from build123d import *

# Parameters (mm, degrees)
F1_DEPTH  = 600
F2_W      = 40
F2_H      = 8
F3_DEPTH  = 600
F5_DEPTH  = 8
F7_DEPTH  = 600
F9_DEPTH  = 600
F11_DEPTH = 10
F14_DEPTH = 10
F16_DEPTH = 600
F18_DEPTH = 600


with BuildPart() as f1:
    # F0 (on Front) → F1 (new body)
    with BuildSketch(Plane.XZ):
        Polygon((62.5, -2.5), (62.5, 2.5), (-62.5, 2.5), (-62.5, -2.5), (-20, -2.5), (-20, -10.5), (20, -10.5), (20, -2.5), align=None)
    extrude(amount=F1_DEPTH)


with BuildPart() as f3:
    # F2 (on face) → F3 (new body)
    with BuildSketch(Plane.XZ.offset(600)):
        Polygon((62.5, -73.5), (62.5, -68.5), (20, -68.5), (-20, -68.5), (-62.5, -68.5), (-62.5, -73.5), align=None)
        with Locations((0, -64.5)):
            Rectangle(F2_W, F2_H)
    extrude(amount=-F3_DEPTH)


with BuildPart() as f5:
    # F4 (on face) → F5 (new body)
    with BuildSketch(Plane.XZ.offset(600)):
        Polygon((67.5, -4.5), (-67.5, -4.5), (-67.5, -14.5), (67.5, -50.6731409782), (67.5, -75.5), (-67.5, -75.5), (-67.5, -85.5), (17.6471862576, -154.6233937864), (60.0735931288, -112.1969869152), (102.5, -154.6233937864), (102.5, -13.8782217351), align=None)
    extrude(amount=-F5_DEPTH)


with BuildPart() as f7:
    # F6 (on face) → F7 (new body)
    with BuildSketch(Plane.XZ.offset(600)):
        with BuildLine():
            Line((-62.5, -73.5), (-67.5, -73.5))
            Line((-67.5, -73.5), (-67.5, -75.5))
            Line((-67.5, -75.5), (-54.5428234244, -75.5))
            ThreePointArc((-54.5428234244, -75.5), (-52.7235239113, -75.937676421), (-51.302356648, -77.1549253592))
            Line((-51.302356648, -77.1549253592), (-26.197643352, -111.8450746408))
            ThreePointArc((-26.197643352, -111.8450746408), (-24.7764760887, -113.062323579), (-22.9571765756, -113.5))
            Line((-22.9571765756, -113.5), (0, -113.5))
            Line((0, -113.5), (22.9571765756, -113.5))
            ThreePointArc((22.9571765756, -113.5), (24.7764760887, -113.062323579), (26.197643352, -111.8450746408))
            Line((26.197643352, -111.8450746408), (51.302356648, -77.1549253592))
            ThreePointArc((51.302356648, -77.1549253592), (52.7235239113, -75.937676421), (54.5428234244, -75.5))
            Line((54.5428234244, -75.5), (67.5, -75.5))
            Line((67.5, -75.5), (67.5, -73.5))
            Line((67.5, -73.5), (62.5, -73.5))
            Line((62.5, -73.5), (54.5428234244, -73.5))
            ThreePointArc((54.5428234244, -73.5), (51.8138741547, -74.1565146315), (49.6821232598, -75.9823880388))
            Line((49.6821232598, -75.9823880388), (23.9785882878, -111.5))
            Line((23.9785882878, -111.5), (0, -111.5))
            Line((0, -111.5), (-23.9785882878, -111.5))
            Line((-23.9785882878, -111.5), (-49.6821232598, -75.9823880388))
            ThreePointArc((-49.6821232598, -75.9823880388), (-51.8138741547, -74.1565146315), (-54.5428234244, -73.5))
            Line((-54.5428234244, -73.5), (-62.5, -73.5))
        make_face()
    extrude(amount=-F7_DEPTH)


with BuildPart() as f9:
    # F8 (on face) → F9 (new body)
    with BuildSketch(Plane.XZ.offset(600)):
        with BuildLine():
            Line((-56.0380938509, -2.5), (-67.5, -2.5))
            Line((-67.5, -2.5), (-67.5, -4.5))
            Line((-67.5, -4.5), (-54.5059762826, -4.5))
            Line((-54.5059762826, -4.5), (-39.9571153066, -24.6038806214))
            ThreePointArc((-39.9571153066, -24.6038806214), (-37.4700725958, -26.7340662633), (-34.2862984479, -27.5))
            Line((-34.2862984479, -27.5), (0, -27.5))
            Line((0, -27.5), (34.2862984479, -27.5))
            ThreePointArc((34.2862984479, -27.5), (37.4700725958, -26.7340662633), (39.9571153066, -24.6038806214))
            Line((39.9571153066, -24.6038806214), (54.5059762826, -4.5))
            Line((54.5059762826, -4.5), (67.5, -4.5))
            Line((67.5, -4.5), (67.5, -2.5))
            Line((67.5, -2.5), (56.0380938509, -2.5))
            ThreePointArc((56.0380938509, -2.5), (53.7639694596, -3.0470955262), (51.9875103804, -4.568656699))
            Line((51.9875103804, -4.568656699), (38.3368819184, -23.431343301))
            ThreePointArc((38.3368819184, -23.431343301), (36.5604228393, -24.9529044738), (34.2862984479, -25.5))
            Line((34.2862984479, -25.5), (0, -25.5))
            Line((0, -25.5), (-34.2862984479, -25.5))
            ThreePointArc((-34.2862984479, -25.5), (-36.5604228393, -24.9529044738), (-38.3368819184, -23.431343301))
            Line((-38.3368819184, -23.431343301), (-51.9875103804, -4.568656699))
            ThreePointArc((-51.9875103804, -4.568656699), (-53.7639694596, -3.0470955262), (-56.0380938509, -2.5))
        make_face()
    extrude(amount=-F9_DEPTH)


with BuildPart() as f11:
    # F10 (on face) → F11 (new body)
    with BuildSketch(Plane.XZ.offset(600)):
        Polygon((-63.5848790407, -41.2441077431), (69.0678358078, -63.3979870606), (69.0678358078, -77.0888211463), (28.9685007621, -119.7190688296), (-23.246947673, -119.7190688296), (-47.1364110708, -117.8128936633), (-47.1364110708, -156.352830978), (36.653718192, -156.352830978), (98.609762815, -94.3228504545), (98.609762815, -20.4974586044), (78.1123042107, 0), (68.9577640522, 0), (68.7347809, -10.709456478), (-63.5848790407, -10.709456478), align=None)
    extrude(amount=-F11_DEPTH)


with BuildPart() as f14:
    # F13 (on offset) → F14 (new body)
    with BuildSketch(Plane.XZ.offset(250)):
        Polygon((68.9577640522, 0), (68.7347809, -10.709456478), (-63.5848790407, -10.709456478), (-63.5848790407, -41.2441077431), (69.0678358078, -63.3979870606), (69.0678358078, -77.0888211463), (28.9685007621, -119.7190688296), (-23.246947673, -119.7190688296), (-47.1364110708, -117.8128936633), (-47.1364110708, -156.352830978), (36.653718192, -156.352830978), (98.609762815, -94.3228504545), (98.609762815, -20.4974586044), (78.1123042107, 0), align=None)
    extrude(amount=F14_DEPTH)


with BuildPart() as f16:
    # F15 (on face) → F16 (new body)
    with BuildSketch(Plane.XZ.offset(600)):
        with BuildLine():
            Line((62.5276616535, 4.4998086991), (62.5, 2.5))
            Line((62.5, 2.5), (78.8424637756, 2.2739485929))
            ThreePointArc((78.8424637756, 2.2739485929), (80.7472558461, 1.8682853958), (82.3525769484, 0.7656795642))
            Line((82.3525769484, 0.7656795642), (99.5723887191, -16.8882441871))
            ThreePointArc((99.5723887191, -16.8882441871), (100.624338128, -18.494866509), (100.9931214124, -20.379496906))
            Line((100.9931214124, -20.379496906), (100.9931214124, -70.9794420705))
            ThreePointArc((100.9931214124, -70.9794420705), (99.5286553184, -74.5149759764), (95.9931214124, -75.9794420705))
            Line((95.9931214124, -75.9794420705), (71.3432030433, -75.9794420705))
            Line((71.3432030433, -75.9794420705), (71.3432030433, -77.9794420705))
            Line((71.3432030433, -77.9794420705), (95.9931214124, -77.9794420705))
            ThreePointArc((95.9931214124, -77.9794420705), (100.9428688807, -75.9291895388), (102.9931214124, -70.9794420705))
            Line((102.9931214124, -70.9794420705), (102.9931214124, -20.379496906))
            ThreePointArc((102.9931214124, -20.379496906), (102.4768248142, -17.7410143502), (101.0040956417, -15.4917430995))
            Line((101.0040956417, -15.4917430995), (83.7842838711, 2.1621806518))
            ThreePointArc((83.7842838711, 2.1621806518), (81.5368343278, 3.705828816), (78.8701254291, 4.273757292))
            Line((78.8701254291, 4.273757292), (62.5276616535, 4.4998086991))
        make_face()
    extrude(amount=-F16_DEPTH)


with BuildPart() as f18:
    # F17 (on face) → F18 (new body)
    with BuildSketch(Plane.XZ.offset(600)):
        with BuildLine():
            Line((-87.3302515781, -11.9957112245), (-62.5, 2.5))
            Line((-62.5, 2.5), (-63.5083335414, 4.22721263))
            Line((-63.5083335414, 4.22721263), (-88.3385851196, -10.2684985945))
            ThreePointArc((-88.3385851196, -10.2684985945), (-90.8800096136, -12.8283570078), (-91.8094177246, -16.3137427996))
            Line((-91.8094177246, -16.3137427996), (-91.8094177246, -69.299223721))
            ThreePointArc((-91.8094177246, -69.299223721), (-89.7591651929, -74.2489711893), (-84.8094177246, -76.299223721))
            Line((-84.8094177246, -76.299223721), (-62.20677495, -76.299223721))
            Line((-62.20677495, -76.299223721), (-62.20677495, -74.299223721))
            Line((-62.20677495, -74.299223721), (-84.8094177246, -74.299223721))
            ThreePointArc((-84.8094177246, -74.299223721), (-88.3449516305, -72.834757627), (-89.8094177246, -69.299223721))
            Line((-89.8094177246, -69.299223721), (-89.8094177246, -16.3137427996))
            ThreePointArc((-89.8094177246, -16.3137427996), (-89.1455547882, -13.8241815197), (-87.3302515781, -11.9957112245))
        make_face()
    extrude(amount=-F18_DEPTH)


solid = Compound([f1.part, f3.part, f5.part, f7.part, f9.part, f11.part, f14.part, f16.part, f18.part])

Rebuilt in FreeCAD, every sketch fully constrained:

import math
import FreeCAD as App
import Part
import Sketcher
from FreeCAD import Vector
Q = App.Units.Quantity


def add_polygon(sketch, points):
    """Adds a closed chain of lines whose ends are joined by coincident constraints."""
    first, n = sketch.GeometryCount, len(points)
    for a, b in zip(points, points[1:] + points[:1]):
        sketch.addGeometry(Part.LineSegment(App.Vector(*a, 0), App.Vector(*b, 0)), False)
    for i in range(n):
        sketch.addConstraint(Sketcher.Constraint("Coincident", first + i, 2, first + (i + 1) % n, 1))

doc = App.newDocument("Part")
body = doc.addObject("PartDesign::Body", "Body")

# Sketch on XZ plane
sketch1 = body.newObject("Sketcher::SketchObject", "Sketch")
sketch1.AttachmentSupport = (doc.getObject("XZ_Plane"), [""])
sketch1.MapMode = "FlatFace"
add_polygon(sketch1, [(62, -2), (62, 2), (-62, 2), (-62, -2), (-20, -2), (-20, -10), (20, -10), (20, -2)])  # lines 0-7
sketch1.addConstraint([
    Sketcher.Constraint("Vertical", 0),
    Sketcher.Constraint("Horizontal", 1),
    Sketcher.Constraint("Vertical", 2),
    Sketcher.Constraint("Horizontal", 3),
    Sketcher.Constraint("Vertical", 4),
    Sketcher.Constraint("Horizontal", 5),
    Sketcher.Constraint("Vertical", 6),
    Sketcher.Constraint("Horizontal", 7),
    Sketcher.Constraint("Symmetric", 0, 2, 2, 2, -1, 1),
    Sketcher.Constraint("Symmetric", 3, 2, 6, 2, -2),
    Sketcher.Constraint("DistanceX", 1, 2, 1, 1, Q("125 mm")),
    Sketcher.Constraint("DistanceX", 5, 1, 5, 2, Q("40 mm")),
    Sketcher.Constraint("DistanceY", 0, 1, 0, 2, Q("5 mm")),
    Sketcher.Constraint("DistanceY", 4, 2, 4, 1, Q("8 mm")),
])
pad1 = body.newObject("PartDesign::Pad", "Pad")
pad1.Profile = sketch1
pad1.Length = 600
body2 = doc.addObject("PartDesign::Body", "Body001")

# Sketch on XZ plane
sketch2 = body2.newObject("Sketcher::SketchObject", "Sketch001")
sketch2.AttachmentSupport = (doc.getObject("XZ_Plane001"), [""])
sketch2.MapMode = "FlatFace"
sketch2.AttachmentOffset = App.Placement(Vector(0, 0, 600), App.Rotation())
add_polygon(sketch2, [(62, -74), (62, -68), (20, -68), (20, -60), (-20, -60), (-20, -68), (-62, -68), (-62, -74)])  # lines 0-7
sketch2.addConstraint([
    Sketcher.Constraint("Vertical", 0),
    Sketcher.Constraint("Horizontal", 1),
    Sketcher.Constraint("Vertical", 2),
    Sketcher.Constraint("Horizontal", 3),
    Sketcher.Constraint("Vertical", 4),
    Sketcher.Constraint("Horizontal", 5),
    Sketcher.Constraint("Vertical", 6),
    Sketcher.Constraint("Horizontal", 7),
    Sketcher.Constraint("Symmetric", 1, 2, 4, 2, -2),
    Sketcher.Constraint("Equal", 1, 5),
    Sketcher.Constraint("DistanceX", 3, 2, 3, 1, Q("40 mm")),
    Sketcher.Constraint("DistanceX", 7, 1, 7, 2, Q("125 mm")),
    Sketcher.Constraint("DistanceY", 0, 1, 0, 2, Q("5 mm")),
    Sketcher.Constraint("DistanceY", 2, 1, 2, 2, Q("8 mm")),
    Sketcher.Constraint("DistanceY", 0, 2, -1, 1, Q("68.5 mm")),
])
pad2 = body2.newObject("PartDesign::Pad", "Pad001")
pad2.Profile = sketch2
pad2.Length = 600
pad2.Reversed = True
body3 = doc.addObject("PartDesign::Body", "Body002")

# Sketch on XZ plane
sketch3 = body3.newObject("Sketcher::SketchObject", "Sketch002")
sketch3.AttachmentSupport = (doc.getObject("XZ_Plane002"), [""])
sketch3.MapMode = "FlatFace"
sketch3.AttachmentOffset = App.Placement(Vector(0, 0, 600), App.Rotation())
add_polygon(sketch3, [(68, -4), (-68, -4), (-68, -14), (68, -51), (68, -76), (-68, -76), (-68, -86), (18, -155), (60, -112), (102, -155), (102, -14)])  # lines 0-10
sketch3.addConstraint([
    Sketcher.Constraint("Horizontal", 0),
    Sketcher.Constraint("Vertical", 1),
    Sketcher.Constraint("Vertical", 3),
    Sketcher.Constraint("Horizontal", 4),
    Sketcher.Constraint("Vertical", 5),
    Sketcher.Constraint("Vertical", 9),
    Sketcher.Constraint("Perpendicular", 7, 8),
    Sketcher.Constraint("Parallel", 2, 10),
    Sketcher.Constraint("Horizontal", 6, 2, 8, 2),
    Sketcher.Constraint("Vertical", 1, 2, 4, 2),
    Sketcher.Constraint("Vertical", 3, 2, 10, 2),
    Sketcher.Constraint("Equal", 1, 5),
    Sketcher.Constraint("Equal", 7, 8),
    Sketcher.Constraint("DistanceX", 0, 2, 0, 1, Q("135 mm")),
    Sketcher.Constraint("DistanceY", 1, 2, 1, 1, Q("10 mm")),
    Sketcher.Constraint("Angle", 2, Q("-15 deg")),
    Sketcher.Constraint("Distance", 7, Q("60 mm")),
    Sketcher.Constraint("DistanceY", 3, 2, 1, 2, Q("61 mm")),
    Sketcher.Constraint("DistanceX", 3, 2, 8, 2, Q("35 mm")),
    Sketcher.Constraint("DistanceX", 0, 2, -1, 1, Q("67.5 mm")),
    Sketcher.Constraint("DistanceY", 0, 2, -1, 1, Q("4.5 mm")),
    Sketcher.Constraint("DistanceY", 9, 1, 9, 2, Q("140.745172 mm")),
])
pad3 = body3.newObject("PartDesign::Pad", "Pad002")
pad3.Profile = sketch3
pad3.Length = 8
pad3.Reversed = True
body4 = doc.addObject("PartDesign::Body", "Body003")

# Sketch on XZ plane
sketch4 = body4.newObject("Sketcher::SketchObject", "Sketch003")
sketch4.AttachmentSupport = (doc.getObject("XZ_Plane003"), [""])
sketch4.MapMode = "FlatFace"
sketch4.AttachmentOffset = App.Placement(Vector(0, 0, 600), App.Rotation())
sketch4.addGeometry([
    Part.LineSegment(Vector(-67.5, -73.5, 0), Vector(-67.5, -75.5, 0)),  # 0
    Part.LineSegment(Vector(-67.5, -75.5, 0), Vector(-54.5, -75.5, 0)),  # 1
    Part.ArcOfCircle(Part.Circle(Vector(-54.5, -79.5, 0), Vector(0, 0, 1), 4), math.radians(36), math.radians(90)),  # 2
    Part.LineSegment(Vector(-51.3, -77.2, 0), Vector(-26.2, -111.8, 0)),  # 3
    Part.ArcOfCircle(Part.Circle(Vector(-23, -109.5, 0), Vector(0, 0, 1), 4), math.radians(-144), math.radians(-90)),  # 4
    Part.LineSegment(Vector(-23, -113.5, 0), Vector(23, -113.5, 0)),  # 5
    Part.ArcOfCircle(Part.Circle(Vector(23, -109.5, 0), Vector(0, 0, 1), 4), math.radians(-90), math.radians(-36)),  # 6
    Part.LineSegment(Vector(26.2, -111.8, 0), Vector(51.3, -77.2, 0)),  # 7
    Part.ArcOfCircle(Part.Circle(Vector(54.5, -79.5, 0), Vector(0, 0, 1), 4), math.radians(90), math.radians(144)),  # 8
    Part.LineSegment(Vector(54.5, -75.5, 0), Vector(67.5, -75.5, 0)),  # 9
    Part.LineSegment(Vector(67.5, -75.5, 0), Vector(67.5, -73.5, 0)),  # 10
    Part.LineSegment(Vector(67.5, -73.5, 0), Vector(54.5, -73.5, 0)),  # 11
    Part.ArcOfCircle(Part.Circle(Vector(54.5, -79.5, 0), Vector(0, 0, 1), 6), math.radians(90), math.radians(144)),  # 12
    Part.LineSegment(Vector(49.7, -76, 0), Vector(24, -111.5, 0)),  # 13
    Part.LineSegment(Vector(24, -111.5, 0), Vector(-24, -111.5, 0)),  # 14
    Part.LineSegment(Vector(-24, -111.5, 0), Vector(-49.7, -76, 0)),  # 15
    Part.ArcOfCircle(Part.Circle(Vector(-54.5, -79.5, 0), Vector(0, 0, 1), 6), math.radians(36), math.radians(90)),  # 16
    Part.LineSegment(Vector(-54.5, -73.5, 0), Vector(-67.5, -73.5, 0)),  # 17
], False)
sketch4.addConstraint([
    Sketcher.Constraint("Coincident", 0, 2, 1, 1),
    Sketcher.Constraint("Tangent", 1, 2, 2, 2),
    Sketcher.Constraint("Tangent", 2, 1, 3, 1),
    Sketcher.Constraint("Tangent", 3, 2, 4, 1),
    Sketcher.Constraint("Tangent", 4, 2, 5, 1),
    Sketcher.Constraint("Tangent", 5, 2, 6, 1),
    Sketcher.Constraint("Tangent", 6, 2, 7, 1),
    Sketcher.Constraint("Tangent", 7, 2, 8, 2),
    Sketcher.Constraint("Tangent", 8, 1, 9, 1),
    Sketcher.Constraint("Coincident", 9, 2, 10, 1),
    Sketcher.Constraint("Coincident", 10, 2, 11, 1),
    Sketcher.Constraint("Tangent", 11, 2, 12, 1),
    Sketcher.Constraint("Tangent", 12, 2, 13, 1),
    Sketcher.Constraint("Coincident", 13, 2, 14, 1),
    Sketcher.Constraint("Coincident", 14, 2, 15, 1),
    Sketcher.Constraint("Tangent", 15, 2, 16, 1),
    Sketcher.Constraint("Tangent", 16, 2, 17, 1),
    Sketcher.Constraint("Coincident", 17, 2, 0, 1),
    Sketcher.Constraint("Vertical", 0),
    Sketcher.Constraint("Horizontal", 1),
    Sketcher.Constraint("Horizontal", 5),
    Sketcher.Constraint("Horizontal", 9),
    Sketcher.Constraint("Vertical", 10),
    Sketcher.Constraint("Horizontal", 11),
    Sketcher.Constraint("Horizontal", 14),
    Sketcher.Constraint("Horizontal", 17),
    Sketcher.Constraint("Coincident", 12, 3, 8, 3),
    Sketcher.Constraint("Coincident", 16, 3, 2, 3),
    Sketcher.Constraint("Equal", 2, 4),
    Sketcher.Constraint("Equal", 4, 6),
    Sketcher.Constraint("Equal", 6, 8),
    Sketcher.Constraint("Equal", 12, 16),
    Sketcher.Constraint("Symmetric", 2, 3, 8, 3, -2),
    Sketcher.Constraint("Parallel", 7, 13),
    Sketcher.Constraint("Parallel", 3, 15),
    Sketcher.Constraint("Horizontal", 3, 2, 6, 2),
    Sketcher.Constraint("Equal", 1, 9),
    Sketcher.Constraint("Radius", 2, Q("4 mm")),
    Sketcher.Constraint("Radius", 12, Q("6 mm")),
    Sketcher.Constraint("DistanceY", 4, 3, 2, 3, Q("30 mm")),
    Sketcher.Constraint("DistanceY", 13, 2, 6, 3, Q("2 mm")),
    Sketcher.Constraint("DistanceY", 2, 3, -1, 1, Q("79.5 mm")),
    Sketcher.Constraint("DistanceX", 0, 2, -1, 1, Q("67.5 mm")),
    Sketcher.Constraint("DistanceX", 2, 3, 6, 3, Q("77.5 mm")),
    Sketcher.Constraint("DistanceX", 12, 2, 8, 1, Q("4.8607 mm")),
])
pad4 = body4.newObject("PartDesign::Pad", "Pad003")
pad4.Profile = sketch4
pad4.Length = 600
pad4.Reversed = True
body5 = doc.addObject("PartDesign::Body", "Body004")

# Sketch on XZ plane
sketch5 = body5.newObject("Sketcher::SketchObject", "Sketch004")
sketch5.AttachmentSupport = (doc.getObject("XZ_Plane004"), [""])
sketch5.MapMode = "FlatFace"
sketch5.AttachmentOffset = App.Placement(Vector(0, 0, 600), App.Rotation())
sketch5.addGeometry([
    Part.LineSegment(Vector(-56, -2.5, 0), Vector(-67.5, -2.5, 0)),  # 0
    Part.LineSegment(Vector(-67.5, -2.5, 0), Vector(-67.5, -4.5, 0)),  # 1
    Part.LineSegment(Vector(-67.5, -4.5, 0), Vector(-54.5, -4.5, 0)),  # 2
    Part.LineSegment(Vector(-54.5, -4.5, 0), Vector(-40, -24.6, 0)),  # 3
    Part.ArcOfCircle(Part.Circle(Vector(-34.3, -20.5, 0), Vector(0, 0, 1), 7), math.radians(-144), math.radians(-90)),  # 4
    Part.LineSegment(Vector(-34.3, -27.5, 0), Vector(34.3, -27.5, 0)),  # 5
    Part.ArcOfCircle(Part.Circle(Vector(34.3, -20.5, 0), Vector(0, 0, 1), 7), math.radians(-90), math.radians(-36)),  # 6
    Part.LineSegment(Vector(40, -24.6, 0), Vector(54.5, -4.5, 0)),  # 7
    Part.LineSegment(Vector(54.5, -4.5, 0), Vector(67.5, -4.5, 0)),  # 8
    Part.LineSegment(Vector(67.5, -4.5, 0), Vector(67.5, -2.5, 0)),  # 9
    Part.LineSegment(Vector(67.5, -2.5, 0), Vector(56, -2.5, 0)),  # 10
    Part.ArcOfCircle(Part.Circle(Vector(56, -7.5, 0), Vector(0, 0, 1), 5), math.radians(90), math.radians(144)),  # 11
    Part.LineSegment(Vector(52, -4.6, 0), Vector(38.3, -23.4, 0)),  # 12
    Part.ArcOfCircle(Part.Circle(Vector(34.3, -20.5, 0), Vector(0, 0, 1), 5), math.radians(-90), math.radians(-36)),  # 13
    Part.LineSegment(Vector(34.3, -25.5, 0), Vector(-34.3, -25.5, 0)),  # 14
    Part.ArcOfCircle(Part.Circle(Vector(-34.3, -20.5, 0), Vector(0, 0, 1), 5), math.radians(-144), math.radians(-90)),  # 15
    Part.LineSegment(Vector(-38.3, -23.4, 0), Vector(-52, -4.6, 0)),  # 16
    Part.ArcOfCircle(Part.Circle(Vector(-56, -7.5, 0), Vector(0, 0, 1), 5), math.radians(36), math.radians(90)),  # 17
], False)
sketch5.addConstraint([
    Sketcher.Constraint("Coincident", 0, 2, 1, 1),
    Sketcher.Constraint("Coincident", 1, 2, 2, 1),
    Sketcher.Constraint("Coincident", 2, 2, 3, 1),
    Sketcher.Constraint("Tangent", 3, 2, 4, 1),
    Sketcher.Constraint("Tangent", 4, 2, 5, 1),
    Sketcher.Constraint("Tangent", 5, 2, 6, 1),
    Sketcher.Constraint("Tangent", 6, 2, 7, 1),
    Sketcher.Constraint("Coincident", 7, 2, 8, 1),
    Sketcher.Constraint("Coincident", 8, 2, 9, 1),
    Sketcher.Constraint("Coincident", 9, 2, 10, 1),
    Sketcher.Constraint("Tangent", 10, 2, 11, 1),
    Sketcher.Constraint("Tangent", 11, 2, 12, 1),
    Sketcher.Constraint("Tangent", 12, 2, 13, 2),
    Sketcher.Constraint("Tangent", 13, 1, 14, 1),
    Sketcher.Constraint("Tangent", 14, 2, 15, 2),
    Sketcher.Constraint("Tangent", 15, 1, 16, 1),
    Sketcher.Constraint("Tangent", 16, 2, 17, 1),
    Sketcher.Constraint("Tangent", 17, 2, 0, 1),
    Sketcher.Constraint("Horizontal", 0),
    Sketcher.Constraint("Vertical", 1),
    Sketcher.Constraint("Horizontal", 2),
    Sketcher.Constraint("Horizontal", 5),
    Sketcher.Constraint("Horizontal", 8),
    Sketcher.Constraint("Vertical", 9),
    Sketcher.Constraint("Horizontal", 10),
    Sketcher.Constraint("Horizontal", 14),
    Sketcher.Constraint("Coincident", 13, 3, 6, 3),
    Sketcher.Constraint("Coincident", 15, 3, 4, 3),
    Sketcher.Constraint("Equal", 4, 6),
    Sketcher.Constraint("Equal", 11, 13),
    Sketcher.Constraint("Equal", 15, 17),
    Sketcher.Constraint("Symmetric", 11, 3, 17, 3, -2),
    Sketcher.Constraint("Symmetric", 3, 2, 6, 2, -2),
    Sketcher.Constraint("Symmetric", 1, 2, 8, 2, -2),
    Sketcher.Constraint("Parallel", 7, 12),
    Sketcher.Constraint("Radius", 4, Q("7 mm")),
    Sketcher.Constraint("Radius", 11, Q("5 mm")),
    Sketcher.Constraint("DistanceY", 1, 2, 1, 1, Q("2 mm")),
    Sketcher.Constraint("DistanceY", 6, 3, 11, 3, Q("13 mm")),
    Sketcher.Constraint("DistanceY", 4, 3, -1, 1, Q("20.5 mm")),
    Sketcher.Constraint("DistanceX", 0, 2, -1, 1, Q("67.5 mm")),
    Sketcher.Constraint("DistanceX", 4, 3, -1, 1, Q("34.286298 mm")),
    Sketcher.Constraint("Distance", 3, Q("24.816031 mm")),
])
pad5 = body5.newObject("PartDesign::Pad", "Pad004")
pad5.Profile = sketch5
pad5.Length = 600
pad5.Reversed = True
body6 = doc.addObject("PartDesign::Body", "Body005")

# Sketch on XZ plane
sketch6 = body6.newObject("Sketcher::SketchObject", "Sketch005")
sketch6.AttachmentSupport = (doc.getObject("XZ_Plane005"), [""])
sketch6.MapMode = "FlatFace"
sketch6.AttachmentOffset = App.Placement(Vector(0, 0, 600), App.Rotation())
add_polygon(sketch6, [(-64, -41), (69, -63), (69, -77), (29, -120), (-23, -120), (-47, -118), (-47, -156), (37, -156), (99, -94), (99, -20), (78, 0), (69, 0), (69, -11), (-64, -11)])  # lines 0-13
sketch6.addConstraint([
    Sketcher.Constraint("Vertical", 1),
    Sketcher.Constraint("Horizontal", 3),
    Sketcher.Constraint("Vertical", 5),
    Sketcher.Constraint("Horizontal", 6),
    Sketcher.Constraint("Vertical", 8),
    Sketcher.Constraint("Horizontal", 10),
    Sketcher.Constraint("Horizontal", 12),
    Sketcher.Constraint("Vertical", 13),
    Sketcher.Constraint("PointOnObject", 9, 2, -1),
    Sketcher.Constraint("Angle", 9, Q("135 deg")),
    Sketcher.Constraint("DistanceX", 10, 2, 8, 2, Q("29.651999 mm")),
    Sketcher.Constraint("DistanceX", 3, 2, 3, 1, Q("52.215448 mm")),
    Sketcher.Constraint("DistanceX", 6, 1, 6, 2, Q("83.790129 mm")),
    Sketcher.Constraint("DistanceX", 10, 2, 10, 1, Q("9.15454 mm")),
    Sketcher.Constraint("DistanceX", 12, 2, 12, 1, Q("132.31966 mm")),
    Sketcher.Constraint("DistanceY", 8, 1, 8, 2, Q("73.825392 mm")),
    Sketcher.Constraint("DistanceY", 13, 2, 13, 1, Q("30.534651 mm")),
    Sketcher.Constraint("DistanceX", -1, 1, 2, 2, Q("28.968501 mm")),
    Sketcher.Constraint("Distance", 4, Q("23.965391 mm")),
    Sketcher.Constraint("DistanceY", 1, 2, 1, 1, Q("13.690834 mm")),
    Sketcher.Constraint("DistanceY", 5, 2, 5, 1, Q("38.539937 mm")),
    Sketcher.Constraint("DistanceY", 1, 2, -1, 1, Q("77.088821 mm")),
    Sketcher.Constraint("DistanceY", 2, 2, -1, 1, Q("119.719069 mm")),
    Sketcher.Constraint("DistanceX", 4, 2, -1, 1, Q("47.136411 mm")),
    Sketcher.Constraint("DistanceX", -1, 1, 11, 2, Q("68.734781 mm")),
    Sketcher.Constraint("DistanceX", 3, 2, 7, 2, Q("121.85671 mm")),
    Sketcher.Constraint("DistanceX", 0, 2, 9, 2, Q("9.044468 mm")),
    Sketcher.Constraint("DistanceY", 0, 2, 11, 2, Q("52.688531 mm")),
])
pad6 = body6.newObject("PartDesign::Pad", "Pad005")
pad6.Profile = sketch6
pad6.Length = 10
pad6.Reversed = True
body7 = doc.addObject("PartDesign::Body", "Body006")

# Sketch on XZ plane
sketch7 = body7.newObject("Sketcher::SketchObject", "Sketch006")
sketch7.AttachmentSupport = (doc.getObject("XZ_Plane006"), [""])
sketch7.MapMode = "FlatFace"
sketch7.AttachmentOffset = App.Placement(Vector(0, 0, 250), App.Rotation())
add_polygon(sketch7, [(69, 0), (69, -11), (-64, -11), (-64, -41), (69, -63), (69, -77), (29, -120), (-23, -120), (-47, -118), (-47, -156), (37, -156), (99, -94), (99, -20), (78, 0)])  # lines 0-13
sketch7.addConstraint([
    Sketcher.Constraint("Horizontal", 1),
    Sketcher.Constraint("Vertical", 2),
    Sketcher.Constraint("Vertical", 4),
    Sketcher.Constraint("Horizontal", 6),
    Sketcher.Constraint("Vertical", 8),
    Sketcher.Constraint("Horizontal", 9),
    Sketcher.Constraint("Vertical", 11),
    Sketcher.Constraint("Horizontal", 13),
    Sketcher.Constraint("PointOnObject", 12, 2, -1),
    Sketcher.Constraint("Angle", 12, Q("135 deg")),
    Sketcher.Constraint("DistanceX", 13, 2, 11, 2, Q("29.651999 mm")),
    Sketcher.Constraint("DistanceX", 1, 2, 1, 1, Q("132.31966 mm")),
    Sketcher.Constraint("DistanceX", 6, 2, 6, 1, Q("52.215448 mm")),
    Sketcher.Constraint("DistanceX", 9, 1, 9, 2, Q("83.790129 mm")),
    Sketcher.Constraint("DistanceX", 13, 2, 13, 1, Q("9.15454 mm")),
    Sketcher.Constraint("DistanceY", 2, 2, 2, 1, Q("30.534651 mm")),
    Sketcher.Constraint("DistanceY", 11, 1, 11, 2, Q("73.825392 mm")),
    Sketcher.Constraint("DistanceX", -1, 1, 5, 2, Q("28.968501 mm")),
    Sketcher.Constraint("Distance", 7, Q("23.965391 mm")),
    Sketcher.Constraint("DistanceY", 4, 2, 4, 1, Q("13.690834 mm")),
    Sketcher.Constraint("DistanceY", 8, 2, 8, 1, Q("38.539937 mm")),
    Sketcher.Constraint("DistanceX", -1, 1, 0, 2, Q("68.734781 mm")),
    Sketcher.Constraint("DistanceY", 4, 2, -1, 1, Q("77.088821 mm")),
    Sketcher.Constraint("DistanceY", 5, 2, -1, 1, Q("119.719069 mm")),
    Sketcher.Constraint("DistanceX", 7, 2, -1, 1, Q("47.136411 mm")),
    Sketcher.Constraint("DistanceY", 3, 2, 0, 2, Q("52.688531 mm")),
    Sketcher.Constraint("DistanceX", 0, 2, 10, 2, Q("29.874982 mm")),
    Sketcher.Constraint("DistanceX", 3, 2, 12, 2, Q("9.044468 mm")),
])
pad7 = body7.newObject("PartDesign::Pad", "Pad006")
pad7.Profile = sketch7
pad7.Length = 10
body8 = doc.addObject("PartDesign::Body", "Body007")

# Sketch on XZ plane
sketch8 = body8.newObject("Sketcher::SketchObject", "Sketch007")
sketch8.AttachmentSupport = (doc.getObject("XZ_Plane007"), [""])
sketch8.MapMode = "FlatFace"
sketch8.AttachmentOffset = App.Placement(Vector(0, 0, 600), App.Rotation())
sketch8.addGeometry([
    Part.LineSegment(Vector(62.5, 4.5, 0), Vector(62.5, 2.5, 0)),  # 0
    Part.LineSegment(Vector(62.5, 2.5, 0), Vector(78.8, 2.3, 0)),  # 1
    Part.ArcOfCircle(Part.Circle(Vector(78.8, -2.7, 0), Vector(0, 0, 1), 5), math.radians(44), math.radians(89)),  # 2
    Part.LineSegment(Vector(82.4, 0.8, 0), Vector(99.6, -16.9, 0)),  # 3
    Part.ArcOfCircle(Part.Circle(Vector(96, -20.4, 0), Vector(0, 0, 1), 5), math.radians(0), math.radians(44)),  # 4
    Part.LineSegment(Vector(101, -20.4, 0), Vector(101, -71, 0)),  # 5
    Part.ArcOfCircle(Part.Circle(Vector(96, -71, 0), Vector(0, 0, 1), 5), math.radians(-90), math.radians(0)),  # 6
    Part.LineSegment(Vector(96, -76, 0), Vector(71.3, -76, 0)),  # 7
    Part.LineSegment(Vector(71.3, -76, 0), Vector(71.3, -78, 0)),  # 8
    Part.LineSegment(Vector(71.3, -78, 0), Vector(96, -78, 0)),  # 9
    Part.ArcOfCircle(Part.Circle(Vector(96, -71, 0), Vector(0, 0, 1), 7), math.radians(-90), math.radians(0)),  # 10
    Part.LineSegment(Vector(103, -71, 0), Vector(103, -20.4, 0)),  # 11
    Part.ArcOfCircle(Part.Circle(Vector(96, -20.4, 0), Vector(0, 0, 1), 7), math.radians(0), math.radians(44)),  # 12
    Part.LineSegment(Vector(101, -15.5, 0), Vector(83.8, 2.2, 0)),  # 13
    Part.ArcOfCircle(Part.Circle(Vector(78.8, -2.7, 0), Vector(0, 0, 1), 7), math.radians(44), math.radians(89)),  # 14
    Part.LineSegment(Vector(78.9, 4.3, 0), Vector(62.5, 4.5, 0)),  # 15
], False)
sketch8.addConstraint([
    Sketcher.Constraint("Coincident", 0, 2, 1, 1),
    Sketcher.Constraint("Tangent", 1, 2, 2, 2),
    Sketcher.Constraint("Tangent", 2, 1, 3, 1),
    Sketcher.Constraint("Tangent", 3, 2, 4, 2),
    Sketcher.Constraint("Tangent", 4, 1, 5, 1),
    Sketcher.Constraint("Tangent", 5, 2, 6, 2),
    Sketcher.Constraint("Tangent", 6, 1, 7, 1),
    Sketcher.Constraint("Coincident", 7, 2, 8, 1),
    Sketcher.Constraint("Coincident", 8, 2, 9, 1),
    Sketcher.Constraint("Tangent", 9, 2, 10, 1),
    Sketcher.Constraint("Tangent", 10, 2, 11, 1),
    Sketcher.Constraint("Tangent", 11, 2, 12, 1),
    Sketcher.Constraint("Tangent", 12, 2, 13, 1),
    Sketcher.Constraint("Tangent", 13, 2, 14, 1),
    Sketcher.Constraint("Tangent", 14, 2, 15, 1),
    Sketcher.Constraint("Coincident", 15, 2, 0, 1),
    Sketcher.Constraint("Vertical", 5),
    Sketcher.Constraint("Horizontal", 7),
    Sketcher.Constraint("Vertical", 8),
    Sketcher.Constraint("Horizontal", 9),
    Sketcher.Constraint("Vertical", 11),
    Sketcher.Constraint("Coincident", 10, 3, 6, 3),
    Sketcher.Constraint("Coincident", 12, 3, 4, 3),
    Sketcher.Constraint("Coincident", 14, 3, 2, 3),
    Sketcher.Constraint("Equal", 2, 4),
    Sketcher.Constraint("Equal", 4, 6),
    Sketcher.Constraint("Equal", 12, 14),
    Sketcher.Constraint("Perpendicular", 0, 1),
    Sketcher.Constraint("Parallel", 1, 15),
    Sketcher.Constraint("Radius", 2, Q("5 mm")),
    Sketcher.Constraint("Radius", 10, Q("7 mm")),
    Sketcher.Constraint("DistanceX", -1, 1, 0, 2, Q("62.5 mm")),
    Sketcher.Constraint("DistanceY", -1, 1, 0, 2, Q("2.5 mm")),
    Sketcher.Constraint("DistanceX", 7, 2, 7, 1, Q("24.649918 mm")),
    Sketcher.Constraint("DistanceY", 3, 2, 12, 2, Q("1.396501 mm")),
    Sketcher.Constraint("DistanceY", 5, 2, 5, 1, Q("50.599945 mm")),
    Sketcher.Constraint("DistanceX", -1, 1, 2, 3, Q("78.77331 mm")),
    Sketcher.Constraint("DistanceX", -1, 1, 4, 3, Q("95.993121 mm")),
    Sketcher.Constraint("DistanceY", -1, 1, 1, 2, Q("2.273949 mm")),
])
pad8 = body8.newObject("PartDesign::Pad", "Pad007")
pad8.Profile = sketch8
pad8.Length = 600
pad8.Reversed = True
body9 = doc.addObject("PartDesign::Body", "Body008")

# Sketch on XZ plane
sketch9 = body9.newObject("Sketcher::SketchObject", "Sketch008")
sketch9.AttachmentSupport = (doc.getObject("XZ_Plane008"), [""])
sketch9.MapMode = "FlatFace"
sketch9.AttachmentOffset = App.Placement(Vector(0, 0, 600), App.Rotation())
sketch9.addGeometry([
    Part.LineSegment(Vector(-87.3, -12, 0), Vector(-62.5, 2.5, 0)),  # 0
    Part.LineSegment(Vector(-62.5, 2.5, 0), Vector(-63.5, 4.2, 0)),  # 1
    Part.LineSegment(Vector(-63.5, 4.2, 0), Vector(-88.3, -10.3, 0)),  # 2
    Part.ArcOfCircle(Part.Circle(Vector(-84.8, -16.3, 0), Vector(0, 0, 1), 7), math.radians(120), math.radians(180)),  # 3
    Part.LineSegment(Vector(-91.8, -16.3, 0), Vector(-91.8, -69.3, 0)),  # 4
    Part.ArcOfCircle(Part.Circle(Vector(-84.8, -69.3, 0), Vector(0, 0, 1), 7), math.radians(180), math.radians(270)),  # 5
    Part.LineSegment(Vector(-84.8, -76.3, 0), Vector(-62.2, -76.3, 0)),  # 6
    Part.LineSegment(Vector(-62.2, -76.3, 0), Vector(-62.2, -74.3, 0)),  # 7
    Part.LineSegment(Vector(-62.2, -74.3, 0), Vector(-84.8, -74.3, 0)),  # 8
    Part.ArcOfCircle(Part.Circle(Vector(-84.8, -69.3, 0), Vector(0, 0, 1), 5), math.radians(180), math.radians(270)),  # 9
    Part.LineSegment(Vector(-89.8, -69.3, 0), Vector(-89.8, -16.3, 0)),  # 10
    Part.ArcOfCircle(Part.Circle(Vector(-84.8, -16.3, 0), Vector(0, 0, 1), 5), math.radians(120), math.radians(180)),  # 11
], False)
sketch9.addConstraint([
    Sketcher.Constraint("Coincident", 0, 2, 1, 1),
    Sketcher.Constraint("Coincident", 1, 2, 2, 1),
    Sketcher.Constraint("Tangent", 2, 2, 3, 1),
    Sketcher.Constraint("Tangent", 3, 2, 4, 1),
    Sketcher.Constraint("Tangent", 4, 2, 5, 1),
    Sketcher.Constraint("Tangent", 5, 2, 6, 1),
    Sketcher.Constraint("Coincident", 6, 2, 7, 1),
    Sketcher.Constraint("Coincident", 7, 2, 8, 1),
    Sketcher.Constraint("Tangent", 8, 2, 9, 2),
    Sketcher.Constraint("Tangent", 9, 1, 10, 1),
    Sketcher.Constraint("Tangent", 10, 2, 11, 2),
    Sketcher.Constraint("Tangent", 11, 1, 0, 1),
    Sketcher.Constraint("Vertical", 4),
    Sketcher.Constraint("Horizontal", 6),
    Sketcher.Constraint("Vertical", 7),
    Sketcher.Constraint("Horizontal", 8),
    Sketcher.Constraint("Vertical", 10),
    Sketcher.Constraint("Coincident", 9, 3, 5, 3),
    Sketcher.Constraint("Coincident", 11, 3, 3, 3),
    Sketcher.Constraint("Equal", 3, 5),
    Sketcher.Constraint("Perpendicular", 0, 1),
    Sketcher.Constraint("Perpendicular", 1, 2),
    Sketcher.Constraint("Radius", 3, Q("7 mm")),
    Sketcher.Constraint("Radius", 9, Q("5 mm")),
    Sketcher.Constraint("DistanceX", 0, 2, -1, 1, Q("62.5 mm")),
    Sketcher.Constraint("DistanceY", -1, 1, 0, 2, Q("2.5 mm")),
    Sketcher.Constraint("DistanceY", 4, 2, 4, 1, Q("52.985481 mm")),
    Sketcher.Constraint("DistanceY", 2, 2, -1, 1, Q("10.268499 mm")),
    Sketcher.Constraint("DistanceX", 6, 1, 6, 2, Q("22.602643 mm")),
    Sketcher.Constraint("DistanceX", 11, 1, -1, 1, Q("87.330252 mm")),
])
pad9 = body9.newObject("PartDesign::Pad", "Pad008")
pad9.Profile = sketch9
pad9.Length = 600
pad9.Reversed = True

doc.recompute()
